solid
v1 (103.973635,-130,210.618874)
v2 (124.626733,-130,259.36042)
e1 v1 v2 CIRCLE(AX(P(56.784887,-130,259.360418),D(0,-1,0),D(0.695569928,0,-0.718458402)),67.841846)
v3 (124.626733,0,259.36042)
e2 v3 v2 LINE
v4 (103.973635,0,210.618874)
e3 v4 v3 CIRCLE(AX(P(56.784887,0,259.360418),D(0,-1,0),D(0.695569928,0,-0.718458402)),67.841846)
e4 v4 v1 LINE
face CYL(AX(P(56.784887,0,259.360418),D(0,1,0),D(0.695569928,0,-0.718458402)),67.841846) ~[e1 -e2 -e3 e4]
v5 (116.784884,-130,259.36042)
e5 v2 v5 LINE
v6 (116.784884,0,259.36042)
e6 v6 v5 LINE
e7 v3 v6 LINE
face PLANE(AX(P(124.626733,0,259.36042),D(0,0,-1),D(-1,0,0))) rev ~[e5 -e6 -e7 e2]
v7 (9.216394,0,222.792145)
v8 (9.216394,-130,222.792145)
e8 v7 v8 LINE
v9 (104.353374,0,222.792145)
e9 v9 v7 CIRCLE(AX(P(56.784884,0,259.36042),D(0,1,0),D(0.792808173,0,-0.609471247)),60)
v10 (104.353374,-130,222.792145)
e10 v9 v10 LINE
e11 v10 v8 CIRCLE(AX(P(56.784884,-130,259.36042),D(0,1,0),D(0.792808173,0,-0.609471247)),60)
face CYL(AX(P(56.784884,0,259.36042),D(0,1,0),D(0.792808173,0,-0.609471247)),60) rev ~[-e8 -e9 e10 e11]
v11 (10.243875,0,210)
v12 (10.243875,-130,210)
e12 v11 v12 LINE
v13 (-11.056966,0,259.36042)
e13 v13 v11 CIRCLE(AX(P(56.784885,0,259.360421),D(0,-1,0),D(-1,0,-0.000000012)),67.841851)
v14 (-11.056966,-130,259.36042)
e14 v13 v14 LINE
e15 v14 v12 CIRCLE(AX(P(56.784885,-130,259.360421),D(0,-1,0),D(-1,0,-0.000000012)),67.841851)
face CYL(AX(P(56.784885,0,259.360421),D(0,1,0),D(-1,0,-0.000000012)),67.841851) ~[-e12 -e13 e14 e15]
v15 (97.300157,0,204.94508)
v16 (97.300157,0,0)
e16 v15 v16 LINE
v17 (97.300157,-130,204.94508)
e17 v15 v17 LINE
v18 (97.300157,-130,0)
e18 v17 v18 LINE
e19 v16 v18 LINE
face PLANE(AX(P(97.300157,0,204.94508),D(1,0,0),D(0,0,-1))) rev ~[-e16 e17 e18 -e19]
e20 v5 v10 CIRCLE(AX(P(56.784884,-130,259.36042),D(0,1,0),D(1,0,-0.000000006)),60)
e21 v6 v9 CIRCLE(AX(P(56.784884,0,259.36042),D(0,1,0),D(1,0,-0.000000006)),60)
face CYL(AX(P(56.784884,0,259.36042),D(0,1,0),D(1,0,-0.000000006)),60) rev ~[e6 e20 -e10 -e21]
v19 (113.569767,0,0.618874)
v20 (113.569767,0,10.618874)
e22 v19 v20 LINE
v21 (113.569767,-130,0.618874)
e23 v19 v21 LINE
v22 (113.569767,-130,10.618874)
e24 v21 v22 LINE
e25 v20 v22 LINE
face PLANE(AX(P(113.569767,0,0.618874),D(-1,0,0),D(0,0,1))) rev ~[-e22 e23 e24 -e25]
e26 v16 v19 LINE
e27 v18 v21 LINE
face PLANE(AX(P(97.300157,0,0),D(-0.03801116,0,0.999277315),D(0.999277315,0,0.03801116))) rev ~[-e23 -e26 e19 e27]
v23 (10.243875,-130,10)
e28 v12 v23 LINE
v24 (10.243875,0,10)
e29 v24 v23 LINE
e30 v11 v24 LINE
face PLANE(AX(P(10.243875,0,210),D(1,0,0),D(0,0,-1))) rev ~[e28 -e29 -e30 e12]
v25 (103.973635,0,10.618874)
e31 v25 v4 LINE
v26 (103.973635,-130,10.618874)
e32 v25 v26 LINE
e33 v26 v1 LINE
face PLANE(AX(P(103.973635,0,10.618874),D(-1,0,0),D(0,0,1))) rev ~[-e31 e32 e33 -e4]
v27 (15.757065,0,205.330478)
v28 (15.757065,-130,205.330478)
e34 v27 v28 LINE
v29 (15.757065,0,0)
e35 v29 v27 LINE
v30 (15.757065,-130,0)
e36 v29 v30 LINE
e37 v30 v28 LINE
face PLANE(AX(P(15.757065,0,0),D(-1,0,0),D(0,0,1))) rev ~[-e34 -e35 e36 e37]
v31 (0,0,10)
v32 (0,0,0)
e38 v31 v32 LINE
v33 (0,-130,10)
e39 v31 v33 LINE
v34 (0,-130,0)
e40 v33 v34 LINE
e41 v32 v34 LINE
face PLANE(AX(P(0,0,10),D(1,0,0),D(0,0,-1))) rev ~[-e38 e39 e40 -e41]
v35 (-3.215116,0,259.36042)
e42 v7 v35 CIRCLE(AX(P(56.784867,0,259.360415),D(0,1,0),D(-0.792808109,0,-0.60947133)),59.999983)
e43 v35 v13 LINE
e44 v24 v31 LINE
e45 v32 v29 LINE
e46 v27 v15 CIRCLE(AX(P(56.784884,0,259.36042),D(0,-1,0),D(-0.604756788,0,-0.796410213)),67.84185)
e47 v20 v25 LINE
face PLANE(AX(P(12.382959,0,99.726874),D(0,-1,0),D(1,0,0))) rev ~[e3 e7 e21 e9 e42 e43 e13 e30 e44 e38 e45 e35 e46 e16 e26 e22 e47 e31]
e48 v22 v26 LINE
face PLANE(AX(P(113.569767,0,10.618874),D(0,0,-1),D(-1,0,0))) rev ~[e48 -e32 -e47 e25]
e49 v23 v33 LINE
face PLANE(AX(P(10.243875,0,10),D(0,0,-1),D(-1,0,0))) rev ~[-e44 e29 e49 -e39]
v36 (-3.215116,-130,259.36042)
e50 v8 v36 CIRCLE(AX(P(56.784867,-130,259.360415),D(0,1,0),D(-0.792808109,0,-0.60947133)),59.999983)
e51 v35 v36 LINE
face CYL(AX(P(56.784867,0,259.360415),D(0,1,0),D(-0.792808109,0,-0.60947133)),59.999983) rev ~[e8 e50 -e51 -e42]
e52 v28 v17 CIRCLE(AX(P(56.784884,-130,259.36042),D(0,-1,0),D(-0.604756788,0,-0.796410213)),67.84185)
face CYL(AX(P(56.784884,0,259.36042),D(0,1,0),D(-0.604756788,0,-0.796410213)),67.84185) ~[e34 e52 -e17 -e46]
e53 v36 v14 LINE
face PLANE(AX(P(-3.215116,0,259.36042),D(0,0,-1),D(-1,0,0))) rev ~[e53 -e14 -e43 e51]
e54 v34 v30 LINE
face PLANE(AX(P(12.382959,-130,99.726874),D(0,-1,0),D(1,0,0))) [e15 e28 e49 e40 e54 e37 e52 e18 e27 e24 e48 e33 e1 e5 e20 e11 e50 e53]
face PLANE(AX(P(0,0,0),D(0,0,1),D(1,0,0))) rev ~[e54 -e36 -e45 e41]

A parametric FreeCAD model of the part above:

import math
import FreeCAD as App
import Part
import Sketcher
from FreeCAD import Vector
Q = App.Units.Quantity

doc = App.newDocument("Part")
body = doc.addObject("PartDesign::Body", "Body")

sketch1 = doc.addObject("Sketcher::SketchObject", "Sketch")
body.addObject(sketch1)
sketch1.AttachmentSupport = (doc.XZ_Plane, [""])
sketch1.MapMode = "FlatFace"
sketch1.addGeometry(Part.LineSegment(Vector(0, 10, 0), Vector(0, 0, 0)), False)
sketch1.addGeometry(Part.LineSegment(Vector(0, 0, 0), Vector(16, 0, 0)), False)
sketch1.addGeometry(Part.LineSegment(Vector(16, 0, 0), Vector(16, 205, 0)), False)
sketch1.addGeometry(Part.ArcOfCircle(Part.Circle(Vector(57, 259, 0), Vector(0, 0, 1), 68), math.radians(-127), math.radians(-53)), False)
sketch1.addGeometry(Part.LineSegment(Vector(97, 205, 0), Vector(97, 0, 0)), False)
sketch1.addGeometry(Part.LineSegment(Vector(97, 0, 0), Vector(114, 1, 0)), False)
sketch1.addGeometry(Part.LineSegment(Vector(114, 1, 0), Vector(114, 11, 0)), False)
sketch1.addGeometry(Part.LineSegment(Vector(114, 11, 0), Vector(104, 11, 0)), False)
sketch1.addGeometry(Part.LineSegment(Vector(104, 11, 0), Vector(104, 211, 0)), False)
sketch1.addGeometry(Part.ArcOfCircle(Part.Circle(Vector(57, 259, 0), Vector(0, 0, 1), 68), math.radians(-46), math.radians(0)), False)
sketch1.addGeometry(Part.LineSegment(Vector(125, 259, 0), Vector(117, 259, 0)), False)
sketch1.addGeometry(Part.ArcOfCircle(Part.Circle(Vector(57, 259, 0), Vector(0, 0, 1), 60), math.radians(-38), math.radians(0)), False)
sketch1.addGeometry(Part.ArcOfCircle(Part.Circle(Vector(57, 259, 0), Vector(0, 0, 1), 60), math.radians(-142), math.radians(-38)), False)
sketch1.addGeometry(Part.ArcOfCircle(Part.Circle(Vector(57, 259, 0), Vector(0, 0, 1), 60), math.radians(180), math.radians(218)), False)
sketch1.addGeometry(Part.LineSegment(Vector(-3, 259, 0), Vector(-11, 259, 0)), False)
sketch1.addGeometry(Part.ArcOfCircle(Part.Circle(Vector(57, 259, 0), Vector(0, 0, 1), 68), math.radians(-180), math.radians(-133)), False)
sketch1.addGeometry(Part.LineSegment(Vector(10, 210, 0), Vector(10, 10, 0)), False)
sketch1.addGeometry(Part.LineSegment(Vector(10, 10, 0), Vector(0, 10, 0)), False)
sketch1.addConstraint(Sketcher.Constraint("Coincident", 0, 2, 1, 1))
sketch1.addConstraint(Sketcher.Constraint("Coincident", 1, 2, 2, 1))
sketch1.addConstraint(Sketcher.Constraint("Coincident", 2, 2, 3, 1))
sketch1.addConstraint(Sketcher.Constraint("Coincident", 3, 2, 4, 1))
sketch1.addConstraint(Sketcher.Constraint("Coincident", 4, 2, 5, 1))
sketch1.addConstraint(Sketcher.Constraint("Coincident", 5, 2, 6, 1))
sketch1.addConstraint(Sketcher.Constraint("Coincident", 6, 2, 7, 1))
sketch1.addConstraint(Sketcher.Constraint("Coincident", 7, 2, 8, 1))
sketch1.addConstraint(Sketcher.Constraint("Coincident", 8, 2, 9, 1))
sketch1.addConstraint(Sketcher.Constraint("Coincident", 9, 2, 10, 1))
sketch1.addConstraint(Sketcher.Constraint("Coincident", 10, 2, 11, 2))
sketch1.addConstraint(Sketcher.Constraint("Tangent", 11, 1, 12, 2))
sketch1.addConstraint(Sketcher.Constraint("Tangent", 12, 1, 13, 2))
sketch1.addConstraint(Sketcher.Constraint("Coincident", 13, 1, 14, 1))
sketch1.addConstraint(Sketcher.Constraint("Coincident", 14, 2, 15, 1))
sketch1.addConstraint(Sketcher.Constraint("Coincident", 15, 2, 16, 1))
sketch1.addConstraint(Sketcher.Constraint("Coincident", 16, 2, 17, 1))
sketch1.addConstraint(Sketcher.Constraint("Coincident", 17, 2, 0, 1))
sketch1.addConstraint(Sketcher.Constraint("Vertical", 0))
sketch1.addConstraint(Sketcher.Constraint("Horizontal", 1))
sketch1.addConstraint(Sketcher.Constraint("Vertical", 2))
sketch1.addConstraint(Sketcher.Constraint("Vertical", 4))
sketch1.addConstraint(Sketcher.Constraint("Vertical", 6))
sketch1.addConstraint(Sketcher.Constraint("Horizontal", 7))
sketch1.addConstraint(Sketcher.Constraint("Vertical", 8))
sketch1.addConstraint(Sketcher.Constraint("Horizontal", 10))
sketch1.addConstraint(Sketcher.Constraint("Horizontal", 14))
sketch1.addConstraint(Sketcher.Constraint("Vertical", 16))
sketch1.addConstraint(Sketcher.Constraint("Horizontal", 17))
sketch1.addConstraint(Sketcher.Constraint("Coincident", 0, 2, -1, 1))
sketch1.addConstraint(Sketcher.Constraint("Coincident", 9, 3, 3, 3))
sketch1.addConstraint(Sketcher.Constraint("Coincident", 11, 3, 3, 3))
sketch1.addConstraint(Sketcher.Constraint("Coincident", 15, 3, 3, 3))
sketch1.addConstraint(Sketcher.Constraint("Equal", 11, 12))
sketch1.addConstraint(Sketcher.Constraint("Equal", 3, 15))
sketch1.addConstraint(Sketcher.Constraint("PointOnObject", 4, 2, -1))
sketch1.addConstraint(Sketcher.Constraint("Horizontal", 15, 3, 9, 2))
sketch1.addConstraint(Sketcher.Constraint("Horizontal", 11, 1, 12, 1))
sketch1.addConstraint(Sketcher.Constraint("Horizontal", 10, 2, 13, 1))
sketch1.addConstraint(Sketcher.Constraint("Equal", 10, 14))
sketch1.addConstraint(Sketcher.Constraint("Equal", 0, 6))
sketch1.addConstraint(Sketcher.Constraint("Equal", 8, 16))
sketch1.addConstraint(Sketcher.Constraint("Radius", 11, Q("60 mm")))
sketch1.addConstraint(Sketcher.Constraint("DistanceY", 0, 2, 0, 1, Q("10 mm")))
sketch1.addConstraint(Sketcher.Constraint("DistanceY", 8, 1, 8, 2, Q("200 mm")))
sketch1.addConstraint(Sketcher.Constraint("DistanceX", 13, 1, 11, 3, Q("60 mm")))
sketch1.addConstraint(Sketcher.Constraint("Radius", 3, Q("67.84185 mm")))
sketch1.addConstraint(Sketcher.Constraint("DistanceX", 7, 2, 7, 1, Q("9.596132 mm")))
sketch1.addConstraint(Sketcher.Constraint("DistanceY", 2, 1, 2, 2, Q("205.330478 mm")))
sketch1.addConstraint(Sketcher.Constraint("DistanceY", 4, 2, 4, 1, Q("204.94508 mm")))
sketch1.addConstraint(Sketcher.Constraint("DistanceX", 1, 2, 5, 2, Q("97.812702 mm")))
sketch1.addConstraint(Sketcher.Constraint("DistanceX", 1, 1, 1, 2, Q("15.757065 mm")))
sketch1.addConstraint(Sketcher.Constraint("DistanceX", 17, 2, 17, 1, Q("10.243875 mm")))
sketch1.addConstraint(Sketcher.Constraint("DistanceX", 8, 2, 11, 1, Q("0.379739 mm")))
pad1 = doc.addObject("PartDesign::Pad", "Pad")
body.addObject(pad1)
pad1.Profile = sketch1
pad1.Length = 130

doc.recompute()
